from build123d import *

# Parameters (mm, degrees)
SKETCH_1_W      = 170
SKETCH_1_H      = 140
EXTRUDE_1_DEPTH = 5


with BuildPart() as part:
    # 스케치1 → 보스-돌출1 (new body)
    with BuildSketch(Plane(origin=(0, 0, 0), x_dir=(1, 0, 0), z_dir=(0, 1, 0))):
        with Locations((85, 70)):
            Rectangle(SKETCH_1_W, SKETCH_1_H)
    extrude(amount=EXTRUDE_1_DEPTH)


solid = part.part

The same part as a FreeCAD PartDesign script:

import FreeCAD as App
import Part
import Sketcher
Q = App.Units.Quantity


def add_polygon(sketch, points):
    """Adds a closed chain of lines whose ends are joined by coincident constraints."""
    first, n = sketch.GeometryCount, len(points)
    for a, b in zip(points, points[1:] + points[:1]):
        sketch.addGeometry(Part.LineSegment(App.Vector(*a, 0), App.Vector(*b, 0)), False)
    for i in range(n):
        sketch.addConstraint(Sketcher.Constraint("Coincident", first + i, 2, first + (i + 1) % n, 1))

doc = App.newDocument("Part")
body = doc.addObject("PartDesign::Body", "Body")

sketch1 = body.newObject("Sketcher::SketchObject", "Sketch")
sketch1.AttachmentSupport = (doc.getObject("XZ_Plane"), [""])
sketch1.MapMode = "FlatFace"
add_polygon(sketch1, [(0, -140), (0, 0), (170, 0), (170, -140)])
sketch1.addConstraint([
    Sketcher.Constraint("Vertical", 0),
    Sketcher.Constraint("Horizontal", 1),
    Sketcher.Constraint("Vertical", 2),
    Sketcher.Constraint("Horizontal", 3),
    Sketcher.Constraint("Coincident", 0, 2, -1, 1),
    Sketcher.Constraint("DistanceX", 1, 1, 1, 2, Q("170 mm")),
    Sketcher.Constraint("DistanceY", 0, 1, 0, 2, Q("140 mm")),
])
pad1 = body.newObject("PartDesign::Pad", "Pad")
pad1.Profile = sketch1
pad1.Length = 5
pad1.Reversed = True

doc.recompute()
